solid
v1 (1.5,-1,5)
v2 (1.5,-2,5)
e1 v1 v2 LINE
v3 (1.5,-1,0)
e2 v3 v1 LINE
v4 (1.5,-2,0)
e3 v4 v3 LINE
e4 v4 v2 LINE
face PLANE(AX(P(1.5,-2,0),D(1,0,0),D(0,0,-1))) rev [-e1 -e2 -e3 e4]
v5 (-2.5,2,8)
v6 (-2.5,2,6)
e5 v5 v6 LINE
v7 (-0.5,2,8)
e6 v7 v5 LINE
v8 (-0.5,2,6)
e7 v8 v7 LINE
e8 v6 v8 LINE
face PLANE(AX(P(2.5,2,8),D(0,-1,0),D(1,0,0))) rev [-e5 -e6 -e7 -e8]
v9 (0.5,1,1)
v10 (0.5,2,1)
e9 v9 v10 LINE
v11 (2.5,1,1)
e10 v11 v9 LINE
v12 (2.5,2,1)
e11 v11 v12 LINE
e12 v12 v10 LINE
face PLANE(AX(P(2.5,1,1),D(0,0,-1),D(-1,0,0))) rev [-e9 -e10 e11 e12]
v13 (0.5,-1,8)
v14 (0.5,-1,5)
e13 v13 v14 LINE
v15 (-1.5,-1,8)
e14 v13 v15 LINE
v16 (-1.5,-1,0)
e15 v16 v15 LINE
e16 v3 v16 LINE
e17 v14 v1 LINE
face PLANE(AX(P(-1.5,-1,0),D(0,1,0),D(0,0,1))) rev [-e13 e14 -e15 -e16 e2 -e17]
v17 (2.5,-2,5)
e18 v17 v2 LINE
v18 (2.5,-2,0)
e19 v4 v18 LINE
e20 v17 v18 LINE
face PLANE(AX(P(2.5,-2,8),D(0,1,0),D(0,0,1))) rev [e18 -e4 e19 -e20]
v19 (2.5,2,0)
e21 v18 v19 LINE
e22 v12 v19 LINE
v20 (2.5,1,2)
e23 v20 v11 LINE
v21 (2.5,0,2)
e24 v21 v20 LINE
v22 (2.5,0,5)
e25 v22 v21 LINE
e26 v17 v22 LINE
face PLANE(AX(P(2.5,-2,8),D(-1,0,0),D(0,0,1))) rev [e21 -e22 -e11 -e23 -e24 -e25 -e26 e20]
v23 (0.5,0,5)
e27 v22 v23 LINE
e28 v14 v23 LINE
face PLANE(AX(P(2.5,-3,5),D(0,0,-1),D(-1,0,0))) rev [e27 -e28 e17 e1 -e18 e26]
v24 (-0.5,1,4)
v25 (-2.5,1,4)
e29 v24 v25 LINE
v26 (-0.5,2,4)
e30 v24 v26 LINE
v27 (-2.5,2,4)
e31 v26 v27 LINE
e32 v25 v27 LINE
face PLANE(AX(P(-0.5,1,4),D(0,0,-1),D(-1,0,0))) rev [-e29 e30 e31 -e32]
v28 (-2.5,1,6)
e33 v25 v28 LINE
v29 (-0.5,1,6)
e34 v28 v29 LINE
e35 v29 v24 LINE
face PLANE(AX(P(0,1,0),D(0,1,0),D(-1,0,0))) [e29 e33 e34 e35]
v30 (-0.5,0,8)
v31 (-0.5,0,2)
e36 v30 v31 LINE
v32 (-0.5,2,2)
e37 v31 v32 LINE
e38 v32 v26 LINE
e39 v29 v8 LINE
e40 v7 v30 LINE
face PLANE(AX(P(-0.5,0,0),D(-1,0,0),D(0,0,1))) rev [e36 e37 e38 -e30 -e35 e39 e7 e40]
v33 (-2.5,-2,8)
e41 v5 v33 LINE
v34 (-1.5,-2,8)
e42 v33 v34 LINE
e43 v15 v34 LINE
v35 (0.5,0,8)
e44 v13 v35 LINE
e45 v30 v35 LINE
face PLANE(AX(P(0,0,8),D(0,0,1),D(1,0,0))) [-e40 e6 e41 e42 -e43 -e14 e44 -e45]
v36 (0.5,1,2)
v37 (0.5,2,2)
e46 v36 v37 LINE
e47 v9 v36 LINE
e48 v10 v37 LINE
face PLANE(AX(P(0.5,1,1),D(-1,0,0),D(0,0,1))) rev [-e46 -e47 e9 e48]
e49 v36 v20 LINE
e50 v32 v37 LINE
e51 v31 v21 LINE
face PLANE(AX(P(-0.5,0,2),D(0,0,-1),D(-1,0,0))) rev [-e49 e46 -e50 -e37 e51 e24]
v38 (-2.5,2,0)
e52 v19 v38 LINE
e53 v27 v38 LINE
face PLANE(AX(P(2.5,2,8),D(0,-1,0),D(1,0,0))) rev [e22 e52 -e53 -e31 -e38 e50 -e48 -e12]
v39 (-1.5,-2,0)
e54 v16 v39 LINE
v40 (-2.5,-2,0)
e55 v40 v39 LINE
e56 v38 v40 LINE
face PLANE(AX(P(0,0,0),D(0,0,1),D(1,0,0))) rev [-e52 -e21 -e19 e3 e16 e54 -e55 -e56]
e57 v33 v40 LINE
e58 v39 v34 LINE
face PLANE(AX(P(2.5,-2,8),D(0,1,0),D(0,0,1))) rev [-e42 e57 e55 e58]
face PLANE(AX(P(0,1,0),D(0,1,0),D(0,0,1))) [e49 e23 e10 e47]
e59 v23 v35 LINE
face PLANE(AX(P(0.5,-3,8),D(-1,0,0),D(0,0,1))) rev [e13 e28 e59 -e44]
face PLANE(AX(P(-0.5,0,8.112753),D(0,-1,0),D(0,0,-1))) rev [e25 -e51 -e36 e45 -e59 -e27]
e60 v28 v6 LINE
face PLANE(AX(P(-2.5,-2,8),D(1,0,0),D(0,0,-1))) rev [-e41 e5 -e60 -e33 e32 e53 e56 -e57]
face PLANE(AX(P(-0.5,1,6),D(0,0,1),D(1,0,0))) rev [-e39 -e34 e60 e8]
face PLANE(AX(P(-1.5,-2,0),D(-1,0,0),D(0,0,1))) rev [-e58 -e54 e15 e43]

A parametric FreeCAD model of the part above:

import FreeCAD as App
import Part
import Sketcher

doc = App.newDocument("Part")
params = doc.addObject("Spreadsheet::Sheet", "Params")
for row, (alias, value) in enumerate([
    ("sketch1_width", "5 mm"),
    ("sketch1_height", "4 mm"),
    ("pad1_length", "8 mm"),
    ("sketch2_width", "2 mm"),
    ("sketch2_height", "1 mm"),
    ("pocket1_length", "1 mm"),
    ("sketch3_width", "2 mm"),
    ("pocket2_length", "3 mm"),
    ("sketch4_width", "2 mm"),
    ("sketch4_height", "3 mm"),
    ("pocket3_length", "3 mm"),
    ("sketch5_width", "3 mm"),
    ("sketch5_height", "1 mm"),
], start=1):
    params.set(f"A{row}", alias)
    params.set(f"B{row}", "=" + value)
    params.setAlias(f"B{row}", alias)

body = doc.addObject("PartDesign::Body", "Body")

# Sketch on XY plane
sketch1 = body.newObject("Sketcher::SketchObject", "Sketch")
sketch1.AttachmentSupport = (doc.getObject("XY_Plane"), [""])
sketch1.MapMode = "FlatFace"
sketch1.addGeometry([
    Part.LineSegment(App.Vector(-2.5, 2, 0), App.Vector(-2.5, -2, 0)),
    Part.LineSegment(App.Vector(-2.5, -2, 0), App.Vector(2.5, -2, 0)),
    Part.LineSegment(App.Vector(2.5, -2, 0), App.Vector(2.5, 2, 0)),
    Part.LineSegment(App.Vector(2.5, 2, 0), App.Vector(-2.5, 2, 0)),
], False)
sketch1.addConstraint([
    Sketcher.Constraint("Coincident", 0, 2, 1, 1),
    Sketcher.Constraint("Coincident", 1, 2, 2, 1),
    Sketcher.Constraint("Coincident", 2, 2, 3, 1),
    Sketcher.Constraint("Coincident", 3, 2, 0, 1),
    Sketcher.Constraint("Vertical", 0),
    Sketcher.Constraint("Horizontal", 1),
    Sketcher.Constraint("Vertical", 2),
    Sketcher.Constraint("Horizontal", 3),
    Sketcher.Constraint("Symmetric", 0, 2, 2, 2, -1, 1),
    Sketcher.Constraint("DistanceX", 1, 1, 1, 2, 5.0),
    Sketcher.Constraint("DistanceY", 0, 2, 0, 1, 4.0),
])
sketch1.setExpression("Constraints[9]", "Params.sketch1_width")
sketch1.setExpression("Constraints[10]", "Params.sketch1_height")
pad1 = body.newObject("PartDesign::Pad", "Pad")
pad1.Profile = sketch1
pad1.setExpression("Length", "Params.pad1_length")

# Sketch on XZ plane
sketch2 = body.newObject("Sketcher::SketchObject", "Sketch001")
sketch2.AttachmentSupport = (doc.getObject("XZ_Plane"), [""])
sketch2.MapMode = "FlatFace"
sketch2.AttachmentOffset = App.Placement(App.Vector(0, 0, -2), App.Rotation())
sketch2.addGeometry([
    Part.LineSegment(App.Vector(-2.5, 4, 0), App.Vector(-2.5, 6, 0)),  # 0
    Part.LineSegment(App.Vector(-2.5, 6, 0), App.Vector(-0.5, 6, 0)),  # 1
    Part.LineSegment(App.Vector(-0.5, 6, 0), App.Vector(-0.5, 4, 0)),  # 2
    Part.LineSegment(App.Vector(-0.5, 4, 0), App.Vector(-2.5, 4, 0)),  # 3
    Part.LineSegment(App.Vector(0.5, 1, 0), App.Vector(0.5, 2, 0)),  # 4
    Part.LineSegment(App.Vector(0.5, 2, 0), App.Vector(2.5, 2, 0)),  # 5
    Part.LineSegment(App.Vector(2.5, 2, 0), App.Vector(2.5, 1, 0)),  # 6
    Part.LineSegment(App.Vector(2.5, 1, 0), App.Vector(0.5, 1, 0)),  # 7
], False)
sketch2.addConstraint([
    Sketcher.Constraint("Coincident", 0, 2, 1, 1),
    Sketcher.Constraint("Coincident", 1, 2, 2, 1),
    Sketcher.Constraint("Coincident", 2, 2, 3, 1),
    Sketcher.Constraint("Coincident", 3, 2, 0, 1),
    Sketcher.Constraint("Coincident", 4, 2, 5, 1),
    Sketcher.Constraint("Coincident", 5, 2, 6, 1),
    Sketcher.Constraint("Coincident", 6, 2, 7, 1),
    Sketcher.Constraint("Coincident", 7, 2, 4, 1),
    Sketcher.Constraint("Vertical", 0),
    Sketcher.Constraint("Horizontal", 1),
    Sketcher.Constraint("Vertical", 2),
    Sketcher.Constraint("Horizontal", 3),
    Sketcher.Constraint("Vertical", 4),
    Sketcher.Constraint("Horizontal", 5),
    Sketcher.Constraint("Vertical", 6),
    Sketcher.Constraint("Horizontal", 7),
    Sketcher.Constraint("Equal", 3, 5),
    Sketcher.Constraint("Equal", 7, 0),
    Sketcher.Constraint("DistanceX", 1, 1, 1, 2, 2.0),
    Sketcher.Constraint("DistanceY", 4, 1, 4, 2, 1.0),
    Sketcher.Constraint("DistanceY", -1, 1, 0, 2, 6.0),
    Sketcher.Constraint("DistanceY", -1, 1, 4, 2, 2.0),
    Sketcher.Constraint("DistanceX", 2, 2, 4, 2, 1.0),
    Sketcher.Constraint("DistanceX", 0, 2, -1, 1, 2.5),
])
sketch2.setExpression("Constraints[18]", "Params.sketch2_width")
sketch2.setExpression("Constraints[19]", "Params.sketch2_height")
pocket1 = body.newObject("PartDesign::Pocket", "Pocket")
pocket1.Profile = sketch2
pocket1.setExpression("Length", "Params.pocket1_length")
pocket1.Reversed = True

# Sketch on YZ plane
sketch3 = body.newObject("Sketcher::SketchObject", "Sketch002")
sketch3.AttachmentSupport = (doc.getObject("YZ_Plane"), [""])
sketch3.MapMode = "FlatFace"
sketch3.AttachmentOffset = App.Placement(App.Vector(0, 0, 2.5), App.Rotation())
sketch3.addGeometry([
    Part.LineSegment(App.Vector(2, 8.1, 0), App.Vector(0, 8.1, 0)),
    Part.LineSegment(App.Vector(0, 8.1, 0), App.Vector(0, 2, 0)),
    Part.LineSegment(App.Vector(0, 2, 0), App.Vector(2, 2, 0)),
    Part.LineSegment(App.Vector(2, 2, 0), App.Vector(2, 8.1, 0)),
], False)
sketch3.addConstraint([
    Sketcher.Constraint("Coincident", 0, 2, 1, 1),
    Sketcher.Constraint("Coincident", 1, 2, 2, 1),
    Sketcher.Constraint("Coincident", 2, 2, 3, 1),
    Sketcher.Constraint("Coincident", 3, 2, 0, 1),
    Sketcher.Constraint("Horizontal", 0),
    Sketcher.Constraint("Vertical", 1),
    Sketcher.Constraint("Horizontal", 2),
    Sketcher.Constraint("Vertical", 3),
    Sketcher.Constraint("PointOnObject", 0, 2, -2),
    Sketcher.Constraint("DistanceX", 0, 2, 0, 1, 2.0),
    Sketcher.Constraint("DistanceY", -1, 1, 1, 2, 2.0),
    Sketcher.Constraint("DistanceY", 1, 2, 1, 1, 6.112753),
])
sketch3.setExpression("Constraints[9]", "Params.sketch3_width")
pocket2 = body.newObject("PartDesign::Pocket", "Pocket001")
pocket2.Profile = sketch3
pocket2.setExpression("Length", "Params.pocket2_length")

# Sketch on XZ plane
sketch4 = body.newObject("Sketcher::SketchObject", "Sketch003")
sketch4.AttachmentSupport = (doc.getObject("XZ_Plane"), [""])
sketch4.MapMode = "FlatFace"
sketch4.addGeometry([
    Part.LineSegment(App.Vector(0.5, 5, 0), App.Vector(0.5, 8, 0)),
    Part.LineSegment(App.Vector(0.5, 8, 0), App.Vector(2.5, 8, 0)),
    Part.LineSegment(App.Vector(2.5, 8, 0), App.Vector(2.5, 5, 0)),
    Part.LineSegment(App.Vector(2.5, 5, 0), App.Vector(0.5, 5, 0)),
], False)
sketch4.addConstraint([
    Sketcher.Constraint("Coincident", 0, 2, 1, 1),
    Sketcher.Constraint("Coincident", 1, 2, 2, 1),
    Sketcher.Constraint("Coincident", 2, 2, 3, 1),
    Sketcher.Constraint("Coincident", 3, 2, 0, 1),
    Sketcher.Constraint("Vertical", 0),
    Sketcher.Constraint("Horizontal", 1),
    Sketcher.Constraint("Vertical", 2),
    Sketcher.Constraint("Horizontal", 3),
    Sketcher.Constraint("DistanceX", 1, 1, 1, 2, 2.0),
    Sketcher.Constraint("DistanceY", 0, 1, 0, 2, 3.0),
    Sketcher.Constraint("DistanceY", -1, 1, 0, 2, 8.0),
    Sketcher.Constraint("DistanceX", -1, 1, 0, 2, 0.5),
])
sketch4.setExpression("Constraints[8]", "Params.sketch4_width")
sketch4.setExpression("Constraints[9]", "Params.sketch4_height")
pocket3 = body.newObject("PartDesign::Pocket", "Pocket002")
pocket3.Profile = sketch4
pocket3.setExpression("Length", "Params.pocket3_length")
pocket3.Reversed = True

# Sketch on XY plane
sketch5 = body.newObject("Sketcher::SketchObject", "Sketch004")
sketch5.AttachmentSupport = (doc.getObject("XY_Plane"), [""])
sketch5.MapMode = "FlatFace"
sketch5.AttachmentOffset = App.Placement(App.Vector(0, 0, 8), App.Rotation())
sketch5.addGeometry([
    Part.LineSegment(App.Vector(-1.5, -1, 0), App.Vector(-1.5, -2, 0)),
    Part.LineSegment(App.Vector(-1.5, -2, 0), App.Vector(1.5, -2, 0)),
    Part.LineSegment(App.Vector(1.5, -2, 0), App.Vector(1.5, -1, 0)),
    Part.LineSegment(App.Vector(1.5, -1, 0), App.Vector(-1.5, -1, 0)),
], False)
sketch5.addConstraint([
    Sketcher.Constraint("Coincident", 0, 2, 1, 1),
    Sketcher.Constraint("Coincident", 1, 2, 2, 1),
    Sketcher.Constraint("Coincident", 2, 2, 3, 1),
    Sketcher.Constraint("Coincident", 3, 2, 0, 1),
    Sketcher.Constraint("Vertical", 0),
    Sketcher.Constraint("Horizontal", 1),
    Sketcher.Constraint("Vertical", 2),
    Sketcher.Constraint("Horizontal", 3),
    Sketcher.Constraint("DistanceX", 1, 1, 1, 2, 3.0),
    Sketcher.Constraint("DistanceY", 0, 2, 0, 1, 1.0),
    Sketcher.Constraint("DistanceY", 0, 2, -1, 1, 2.0),
    Sketcher.Constraint("DistanceX", 0, 2, -1, 1, 1.5),
])
sketch5.setExpression("Constraints[8]", "Params.sketch5_width")
sketch5.setExpression("Constraints[9]", "Params.sketch5_height")
pocket4 = body.newObject("PartDesign::Pocket", "Pocket003")
pocket4.Profile = sketch5
pocket4.Type = "ThroughAll"

doc.recompute()
